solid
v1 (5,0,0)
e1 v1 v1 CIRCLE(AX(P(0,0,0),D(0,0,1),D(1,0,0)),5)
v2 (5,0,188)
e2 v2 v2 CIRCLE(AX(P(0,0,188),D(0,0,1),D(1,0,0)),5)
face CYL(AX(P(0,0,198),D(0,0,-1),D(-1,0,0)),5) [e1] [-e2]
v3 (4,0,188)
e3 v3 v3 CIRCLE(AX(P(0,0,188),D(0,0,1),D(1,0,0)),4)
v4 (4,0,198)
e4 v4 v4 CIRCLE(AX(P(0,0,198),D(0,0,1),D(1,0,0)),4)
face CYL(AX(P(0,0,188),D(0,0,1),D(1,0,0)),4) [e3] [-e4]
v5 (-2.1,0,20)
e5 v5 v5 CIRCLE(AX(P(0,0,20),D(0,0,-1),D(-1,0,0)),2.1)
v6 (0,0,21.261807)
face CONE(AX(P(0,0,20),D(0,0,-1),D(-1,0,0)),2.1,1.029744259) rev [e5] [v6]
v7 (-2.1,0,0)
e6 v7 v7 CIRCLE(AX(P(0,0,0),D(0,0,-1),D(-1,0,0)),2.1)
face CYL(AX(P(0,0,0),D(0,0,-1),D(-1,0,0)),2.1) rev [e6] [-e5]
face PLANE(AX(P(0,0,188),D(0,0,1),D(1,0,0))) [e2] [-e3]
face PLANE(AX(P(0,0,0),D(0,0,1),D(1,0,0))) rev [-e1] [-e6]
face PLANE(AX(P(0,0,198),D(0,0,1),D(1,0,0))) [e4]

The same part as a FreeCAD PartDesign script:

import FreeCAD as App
import Part
import Sketcher
from FreeCAD import Vector

doc = App.newDocument("Part")
params = doc.addObject("Spreadsheet::Sheet", "Params")
for row, (alias, value) in enumerate([
    ("sketch1_diameter", "10 mm"),
    ("pad1_length", "198 mm"),
    ("sketch2_diameter", "4.2 mm"),
    ("hole_diameter", "4.2 mm"),
    ("hole_depth", "20 mm"),
    ("sketch3_diameter", "11 mm"),
    ("sketch3_diameter2", "8 mm"),
    ("pocket1_length", "10 mm"),
], start=1):
    params.set(f"A{row}", alias)
    params.set(f"B{row}", "=" + value)
    params.setAlias(f"B{row}", alias)

body = doc.addObject("PartDesign::Body", "Body")

sketch1 = body.newObject("Sketcher::SketchObject", "Sketch")
sketch1.AttachmentSupport = (doc.getObject("XY_Plane"), [""])
sketch1.MapMode = "FlatFace"
sketch1.addGeometry(Part.Circle(Vector(0, 0, 0), Vector(0, 0, 1), 5), False)
sketch1.addConstraint([
    Sketcher.Constraint("Coincident", 0, 3, -1, 1),
    Sketcher.Constraint("Diameter", 0, 10.0),
])
sketch1.setExpression("Constraints[1]", "Params.sketch1_diameter")
pad1 = body.newObject("PartDesign::Pad", "Pad")
pad1.Profile = sketch1
pad1.setExpression("Length", "Params.pad1_length")

sketch2 = body.newObject("Sketcher::SketchObject", "Sketch001")
sketch2.AttachmentSupport = (doc.getObject("XY_Plane"), [""])
sketch2.MapMode = "FlatFace"
sketch2.addGeometry(Part.Circle(Vector(0, 0, 0), Vector(0, 0, 1), 2.1), False)
sketch2.addConstraint([
    Sketcher.Constraint("Coincident", 0, 3, -1, 1),
    Sketcher.Constraint("Diameter", 0, 4.2),
])
sketch2.setExpression("Constraints[1]", "Params.sketch2_diameter")
doc.recompute()
hole = body.newObject("PartDesign::Hole", "Hole")
hole.Profile = sketch2
hole.ThreadType = "None"
hole.setExpression("Diameter", "Params.hole_diameter")
hole.DepthType = "Dimension"
hole.setExpression("Depth", "Params.hole_depth")
hole.DrillPoint = "Angled"
hole.DrillPointAngle = 118
hole.Reversed = True

sketch3 = body.newObject("Sketcher::SketchObject", "Sketch002")
sketch3.AttachmentSupport = (doc.getObject("XY_Plane"), [""])
sketch3.MapMode = "FlatFace"
sketch3.AttachmentOffset = App.Placement(Vector(0, 0, 198), App.Rotation())
sketch3.addGeometry([
    Part.Circle(Vector(0, 0, 0), Vector(0, 0, 1), 5.5),
    Part.Circle(Vector(0, 0, 0), Vector(0, 0, 1), 4),
], False)
sketch3.addConstraint([
    Sketcher.Constraint("Coincident", 0, 3, -1, 1),
    Sketcher.Constraint("Coincident", 1, 3, -1, 1),
    Sketcher.Constraint("Diameter", 0, 11.0),
    Sketcher.Constraint("Diameter", 1, 8.0),
])
sketch3.setExpression("Constraints[2]", "Params.sketch3_diameter")
sketch3.setExpression("Constraints[3]", "Params.sketch3_diameter2")
pocket1 = body.newObject("PartDesign::Pocket", "Pocket")
pocket1.Profile = sketch3
pocket1.setExpression("Length", "Params.pocket1_length")

doc.recompute()
